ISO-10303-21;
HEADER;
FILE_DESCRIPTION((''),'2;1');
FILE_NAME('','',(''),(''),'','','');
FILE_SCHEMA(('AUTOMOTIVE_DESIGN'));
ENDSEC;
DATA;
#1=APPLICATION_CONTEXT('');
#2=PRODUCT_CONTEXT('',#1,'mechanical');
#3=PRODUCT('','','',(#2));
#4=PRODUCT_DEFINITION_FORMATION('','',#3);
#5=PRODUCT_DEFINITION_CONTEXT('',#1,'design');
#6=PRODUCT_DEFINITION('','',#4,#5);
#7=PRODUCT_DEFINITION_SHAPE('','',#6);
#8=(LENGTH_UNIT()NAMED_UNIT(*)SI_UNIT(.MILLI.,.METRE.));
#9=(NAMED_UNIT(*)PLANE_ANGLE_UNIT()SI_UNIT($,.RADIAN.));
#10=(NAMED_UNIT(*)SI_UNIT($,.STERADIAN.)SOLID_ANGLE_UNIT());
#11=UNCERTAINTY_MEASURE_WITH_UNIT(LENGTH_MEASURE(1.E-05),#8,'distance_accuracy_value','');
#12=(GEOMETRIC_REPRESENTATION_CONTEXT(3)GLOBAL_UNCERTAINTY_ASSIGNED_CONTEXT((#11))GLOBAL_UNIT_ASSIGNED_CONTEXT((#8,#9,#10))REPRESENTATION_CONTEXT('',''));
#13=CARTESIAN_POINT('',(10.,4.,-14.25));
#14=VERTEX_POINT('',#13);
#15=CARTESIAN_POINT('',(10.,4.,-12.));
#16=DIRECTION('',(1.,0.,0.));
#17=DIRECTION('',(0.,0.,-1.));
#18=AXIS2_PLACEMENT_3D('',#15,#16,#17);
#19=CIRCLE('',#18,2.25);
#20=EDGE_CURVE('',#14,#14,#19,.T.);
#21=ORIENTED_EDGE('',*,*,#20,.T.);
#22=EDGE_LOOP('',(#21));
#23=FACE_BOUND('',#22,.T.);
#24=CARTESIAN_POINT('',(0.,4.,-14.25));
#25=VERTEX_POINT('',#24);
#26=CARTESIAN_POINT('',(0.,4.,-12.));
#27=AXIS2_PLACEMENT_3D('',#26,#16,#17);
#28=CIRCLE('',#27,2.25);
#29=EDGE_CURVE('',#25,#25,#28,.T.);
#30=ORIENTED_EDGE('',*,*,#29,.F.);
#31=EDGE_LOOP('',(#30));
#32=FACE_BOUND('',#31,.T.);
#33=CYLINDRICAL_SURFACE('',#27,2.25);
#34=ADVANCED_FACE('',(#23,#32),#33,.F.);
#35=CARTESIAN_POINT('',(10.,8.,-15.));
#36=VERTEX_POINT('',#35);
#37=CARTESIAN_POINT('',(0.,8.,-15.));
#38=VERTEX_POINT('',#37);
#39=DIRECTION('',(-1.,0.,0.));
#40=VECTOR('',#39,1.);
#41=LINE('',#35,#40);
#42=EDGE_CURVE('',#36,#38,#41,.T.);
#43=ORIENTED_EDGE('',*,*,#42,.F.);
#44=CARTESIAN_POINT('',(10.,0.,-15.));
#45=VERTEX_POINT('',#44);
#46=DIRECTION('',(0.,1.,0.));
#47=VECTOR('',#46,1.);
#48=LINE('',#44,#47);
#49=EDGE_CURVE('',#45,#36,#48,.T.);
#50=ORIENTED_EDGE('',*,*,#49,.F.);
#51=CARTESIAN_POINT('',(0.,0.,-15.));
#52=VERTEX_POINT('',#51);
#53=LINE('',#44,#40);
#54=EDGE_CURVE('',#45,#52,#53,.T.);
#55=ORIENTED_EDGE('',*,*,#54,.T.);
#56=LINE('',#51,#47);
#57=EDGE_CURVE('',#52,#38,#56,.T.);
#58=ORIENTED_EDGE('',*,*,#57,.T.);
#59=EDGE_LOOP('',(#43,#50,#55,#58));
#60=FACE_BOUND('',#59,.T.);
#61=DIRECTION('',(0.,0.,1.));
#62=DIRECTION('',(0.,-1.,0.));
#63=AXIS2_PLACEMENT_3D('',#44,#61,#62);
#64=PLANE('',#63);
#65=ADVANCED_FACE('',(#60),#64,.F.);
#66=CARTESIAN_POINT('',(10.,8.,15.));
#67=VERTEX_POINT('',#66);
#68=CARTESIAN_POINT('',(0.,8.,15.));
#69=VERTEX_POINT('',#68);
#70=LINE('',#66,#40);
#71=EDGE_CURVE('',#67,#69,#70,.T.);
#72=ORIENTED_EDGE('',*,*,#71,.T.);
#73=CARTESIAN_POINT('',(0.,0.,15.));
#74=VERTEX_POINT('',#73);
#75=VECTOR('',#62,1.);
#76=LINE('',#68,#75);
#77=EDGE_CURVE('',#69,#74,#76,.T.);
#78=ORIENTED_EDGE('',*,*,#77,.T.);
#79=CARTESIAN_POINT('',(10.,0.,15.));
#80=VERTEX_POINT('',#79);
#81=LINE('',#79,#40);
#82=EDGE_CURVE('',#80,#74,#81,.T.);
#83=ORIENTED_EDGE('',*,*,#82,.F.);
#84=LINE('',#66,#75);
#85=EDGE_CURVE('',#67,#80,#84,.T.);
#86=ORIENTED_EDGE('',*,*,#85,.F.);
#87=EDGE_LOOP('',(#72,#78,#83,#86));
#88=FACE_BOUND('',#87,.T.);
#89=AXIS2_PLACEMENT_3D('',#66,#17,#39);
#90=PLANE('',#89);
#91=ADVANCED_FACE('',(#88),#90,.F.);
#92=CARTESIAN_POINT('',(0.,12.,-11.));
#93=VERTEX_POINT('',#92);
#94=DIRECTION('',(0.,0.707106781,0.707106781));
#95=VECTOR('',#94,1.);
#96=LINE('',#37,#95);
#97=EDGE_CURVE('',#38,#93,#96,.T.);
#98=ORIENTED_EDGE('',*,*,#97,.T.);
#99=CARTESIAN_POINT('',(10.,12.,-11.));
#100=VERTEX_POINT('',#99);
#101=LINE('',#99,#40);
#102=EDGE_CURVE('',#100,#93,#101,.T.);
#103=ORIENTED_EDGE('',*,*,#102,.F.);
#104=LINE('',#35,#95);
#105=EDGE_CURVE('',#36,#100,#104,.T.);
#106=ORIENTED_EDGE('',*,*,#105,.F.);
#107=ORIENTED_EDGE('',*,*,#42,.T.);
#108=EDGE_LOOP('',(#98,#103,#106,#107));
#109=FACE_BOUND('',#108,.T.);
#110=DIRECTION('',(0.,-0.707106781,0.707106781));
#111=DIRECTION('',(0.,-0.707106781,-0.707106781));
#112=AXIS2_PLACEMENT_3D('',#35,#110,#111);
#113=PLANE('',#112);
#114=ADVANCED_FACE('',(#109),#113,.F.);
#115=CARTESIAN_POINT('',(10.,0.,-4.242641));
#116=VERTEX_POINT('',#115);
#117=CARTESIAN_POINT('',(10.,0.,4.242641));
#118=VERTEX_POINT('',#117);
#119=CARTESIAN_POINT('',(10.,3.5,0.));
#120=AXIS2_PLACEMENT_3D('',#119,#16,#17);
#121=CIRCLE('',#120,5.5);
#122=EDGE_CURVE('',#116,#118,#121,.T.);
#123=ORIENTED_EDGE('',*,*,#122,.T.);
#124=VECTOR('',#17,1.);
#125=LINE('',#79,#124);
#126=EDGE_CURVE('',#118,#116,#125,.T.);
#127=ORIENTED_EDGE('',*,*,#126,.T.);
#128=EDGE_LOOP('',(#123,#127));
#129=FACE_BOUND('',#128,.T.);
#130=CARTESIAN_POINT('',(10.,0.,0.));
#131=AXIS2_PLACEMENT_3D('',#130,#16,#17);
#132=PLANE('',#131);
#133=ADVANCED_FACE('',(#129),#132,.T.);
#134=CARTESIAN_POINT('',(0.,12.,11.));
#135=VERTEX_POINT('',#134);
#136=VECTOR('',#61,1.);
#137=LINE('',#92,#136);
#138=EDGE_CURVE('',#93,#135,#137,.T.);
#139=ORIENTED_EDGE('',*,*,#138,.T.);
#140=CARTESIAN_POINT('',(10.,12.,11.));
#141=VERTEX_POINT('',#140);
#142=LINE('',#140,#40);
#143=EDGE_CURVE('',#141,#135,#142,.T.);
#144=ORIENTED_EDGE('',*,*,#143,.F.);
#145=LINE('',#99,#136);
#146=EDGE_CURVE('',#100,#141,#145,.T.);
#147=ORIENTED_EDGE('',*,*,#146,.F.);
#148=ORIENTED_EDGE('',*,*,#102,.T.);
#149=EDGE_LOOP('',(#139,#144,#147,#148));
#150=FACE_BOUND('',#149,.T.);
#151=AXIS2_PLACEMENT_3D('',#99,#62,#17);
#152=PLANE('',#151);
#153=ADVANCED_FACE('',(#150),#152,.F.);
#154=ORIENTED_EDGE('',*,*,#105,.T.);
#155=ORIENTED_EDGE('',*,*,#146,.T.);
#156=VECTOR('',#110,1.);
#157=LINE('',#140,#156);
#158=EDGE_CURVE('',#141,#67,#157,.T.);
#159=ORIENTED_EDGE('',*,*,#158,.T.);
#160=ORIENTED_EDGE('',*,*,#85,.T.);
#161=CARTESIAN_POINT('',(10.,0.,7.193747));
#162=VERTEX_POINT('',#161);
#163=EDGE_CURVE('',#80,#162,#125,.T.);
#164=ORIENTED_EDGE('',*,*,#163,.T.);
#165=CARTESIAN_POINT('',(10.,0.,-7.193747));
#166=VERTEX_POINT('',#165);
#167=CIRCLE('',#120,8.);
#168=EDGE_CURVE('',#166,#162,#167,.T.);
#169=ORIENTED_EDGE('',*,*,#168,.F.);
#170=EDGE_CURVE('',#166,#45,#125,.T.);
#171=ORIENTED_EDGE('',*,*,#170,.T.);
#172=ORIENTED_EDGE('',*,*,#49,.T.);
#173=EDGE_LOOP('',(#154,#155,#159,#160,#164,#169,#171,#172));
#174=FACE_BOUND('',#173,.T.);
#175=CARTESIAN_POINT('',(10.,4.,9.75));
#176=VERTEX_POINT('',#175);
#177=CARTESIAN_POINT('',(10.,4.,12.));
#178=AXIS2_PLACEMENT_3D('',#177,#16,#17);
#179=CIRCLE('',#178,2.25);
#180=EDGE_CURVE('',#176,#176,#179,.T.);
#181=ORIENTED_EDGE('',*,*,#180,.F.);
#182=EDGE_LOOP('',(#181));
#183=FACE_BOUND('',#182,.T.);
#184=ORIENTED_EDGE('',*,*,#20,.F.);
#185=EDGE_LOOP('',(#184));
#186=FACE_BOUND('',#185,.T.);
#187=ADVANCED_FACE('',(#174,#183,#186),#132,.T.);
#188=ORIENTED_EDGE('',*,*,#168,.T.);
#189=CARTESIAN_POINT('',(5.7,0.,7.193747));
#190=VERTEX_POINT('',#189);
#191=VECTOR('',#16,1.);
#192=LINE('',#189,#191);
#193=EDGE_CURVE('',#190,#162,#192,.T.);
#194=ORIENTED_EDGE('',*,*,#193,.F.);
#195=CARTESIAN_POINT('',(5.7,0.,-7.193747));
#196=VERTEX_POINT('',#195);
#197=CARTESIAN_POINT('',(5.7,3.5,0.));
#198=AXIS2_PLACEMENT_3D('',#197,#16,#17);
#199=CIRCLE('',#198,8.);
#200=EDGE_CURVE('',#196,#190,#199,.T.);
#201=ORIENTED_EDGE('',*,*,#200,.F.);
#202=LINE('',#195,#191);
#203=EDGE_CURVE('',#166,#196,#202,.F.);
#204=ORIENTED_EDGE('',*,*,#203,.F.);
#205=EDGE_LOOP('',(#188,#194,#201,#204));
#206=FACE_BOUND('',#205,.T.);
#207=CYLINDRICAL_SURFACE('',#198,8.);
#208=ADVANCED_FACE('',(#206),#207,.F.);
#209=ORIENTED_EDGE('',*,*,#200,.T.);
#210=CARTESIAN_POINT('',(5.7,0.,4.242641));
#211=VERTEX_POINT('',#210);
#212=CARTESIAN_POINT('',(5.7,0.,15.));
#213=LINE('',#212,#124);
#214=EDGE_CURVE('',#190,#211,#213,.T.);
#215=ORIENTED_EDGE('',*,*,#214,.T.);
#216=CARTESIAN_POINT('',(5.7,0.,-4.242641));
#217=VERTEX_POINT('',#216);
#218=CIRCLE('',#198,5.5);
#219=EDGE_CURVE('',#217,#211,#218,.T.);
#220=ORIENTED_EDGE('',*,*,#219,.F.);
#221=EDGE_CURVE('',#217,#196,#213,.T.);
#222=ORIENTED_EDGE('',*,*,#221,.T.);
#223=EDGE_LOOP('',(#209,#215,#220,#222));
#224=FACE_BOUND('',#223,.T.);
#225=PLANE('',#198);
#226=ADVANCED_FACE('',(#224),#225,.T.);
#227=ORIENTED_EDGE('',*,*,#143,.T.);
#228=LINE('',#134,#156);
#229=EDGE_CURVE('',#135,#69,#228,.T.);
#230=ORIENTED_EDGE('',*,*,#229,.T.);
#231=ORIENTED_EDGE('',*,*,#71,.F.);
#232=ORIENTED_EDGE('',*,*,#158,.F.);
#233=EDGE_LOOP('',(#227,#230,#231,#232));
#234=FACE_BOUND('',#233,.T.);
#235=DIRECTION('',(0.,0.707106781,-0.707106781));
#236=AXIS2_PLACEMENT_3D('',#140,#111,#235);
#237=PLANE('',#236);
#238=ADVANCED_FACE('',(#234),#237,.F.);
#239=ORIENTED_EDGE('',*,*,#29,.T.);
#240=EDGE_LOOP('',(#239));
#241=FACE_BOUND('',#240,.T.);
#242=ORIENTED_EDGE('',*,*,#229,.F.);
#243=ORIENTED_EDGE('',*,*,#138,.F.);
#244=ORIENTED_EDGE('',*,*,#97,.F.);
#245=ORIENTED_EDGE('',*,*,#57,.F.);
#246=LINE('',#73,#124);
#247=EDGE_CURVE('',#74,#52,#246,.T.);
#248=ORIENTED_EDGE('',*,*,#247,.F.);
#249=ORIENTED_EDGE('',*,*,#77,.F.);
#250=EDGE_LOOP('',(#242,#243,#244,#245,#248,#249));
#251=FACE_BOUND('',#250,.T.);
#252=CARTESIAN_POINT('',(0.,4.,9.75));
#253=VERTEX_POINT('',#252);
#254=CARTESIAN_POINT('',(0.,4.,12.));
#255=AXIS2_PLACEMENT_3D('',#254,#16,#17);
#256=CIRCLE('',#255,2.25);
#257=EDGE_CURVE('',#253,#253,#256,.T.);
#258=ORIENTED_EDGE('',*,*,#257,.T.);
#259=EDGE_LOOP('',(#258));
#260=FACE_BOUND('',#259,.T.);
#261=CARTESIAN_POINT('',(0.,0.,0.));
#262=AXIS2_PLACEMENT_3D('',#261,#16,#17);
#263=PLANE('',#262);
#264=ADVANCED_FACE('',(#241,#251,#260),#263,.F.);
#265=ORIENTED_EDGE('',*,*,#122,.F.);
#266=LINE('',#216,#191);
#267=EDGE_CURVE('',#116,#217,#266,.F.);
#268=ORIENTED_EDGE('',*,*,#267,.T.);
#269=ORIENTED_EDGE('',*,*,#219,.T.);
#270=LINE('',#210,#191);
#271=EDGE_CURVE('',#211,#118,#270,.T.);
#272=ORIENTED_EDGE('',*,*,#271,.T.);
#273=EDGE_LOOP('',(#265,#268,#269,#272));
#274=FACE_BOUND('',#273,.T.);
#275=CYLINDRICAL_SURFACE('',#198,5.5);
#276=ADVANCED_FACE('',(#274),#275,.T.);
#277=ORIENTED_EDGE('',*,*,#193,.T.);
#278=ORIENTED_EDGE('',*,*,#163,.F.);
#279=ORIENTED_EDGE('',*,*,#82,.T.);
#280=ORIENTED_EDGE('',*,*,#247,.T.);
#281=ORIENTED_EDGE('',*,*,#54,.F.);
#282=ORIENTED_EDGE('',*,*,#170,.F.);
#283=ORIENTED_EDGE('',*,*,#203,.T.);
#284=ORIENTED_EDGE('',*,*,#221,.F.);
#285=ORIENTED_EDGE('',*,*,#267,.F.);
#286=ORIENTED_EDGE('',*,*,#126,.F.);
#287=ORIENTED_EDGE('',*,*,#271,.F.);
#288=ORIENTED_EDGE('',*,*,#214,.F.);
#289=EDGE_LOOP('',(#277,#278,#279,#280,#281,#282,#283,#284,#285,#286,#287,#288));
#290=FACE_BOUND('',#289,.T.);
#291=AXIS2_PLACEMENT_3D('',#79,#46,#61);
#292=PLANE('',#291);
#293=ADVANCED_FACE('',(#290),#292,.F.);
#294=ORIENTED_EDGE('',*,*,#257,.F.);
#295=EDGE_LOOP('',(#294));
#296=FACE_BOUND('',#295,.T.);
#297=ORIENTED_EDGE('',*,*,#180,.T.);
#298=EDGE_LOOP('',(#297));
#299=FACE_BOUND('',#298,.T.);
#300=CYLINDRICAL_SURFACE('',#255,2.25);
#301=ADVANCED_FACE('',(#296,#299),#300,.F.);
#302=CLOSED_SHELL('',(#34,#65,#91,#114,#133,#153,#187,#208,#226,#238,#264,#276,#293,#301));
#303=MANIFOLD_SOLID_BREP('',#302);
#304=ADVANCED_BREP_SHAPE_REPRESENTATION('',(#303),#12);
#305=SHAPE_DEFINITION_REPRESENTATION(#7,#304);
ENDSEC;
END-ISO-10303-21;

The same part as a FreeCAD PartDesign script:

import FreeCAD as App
import Part
import Sketcher
from FreeCAD import Vector

doc = App.newDocument("Part")
body = doc.addObject("PartDesign::Body", "Body")

sketch1 = body.newObject("Sketcher::SketchObject", "Sketch")
sketch1.AttachmentSupport = (doc.getObject("YZ_Plane"), [""])
sketch1.MapMode = "FlatFace"
sketch1.addGeometry(Part.LineSegment(Vector(0, 15, 0), Vector(0, -15, 0)), False)
sketch1.addGeometry(Part.LineSegment(Vector(0, -15, 0), Vector(8, -15, 0)), False)
sketch1.addGeometry(Part.LineSegment(Vector(8, -15, 0), Vector(12, -11, 0)), False)
sketch1.addGeometry(Part.LineSegment(Vector(12, -11, 0), Vector(12, 11, 0)), False)
sketch1.addGeometry(Part.LineSegment(Vector(12, 11, 0), Vector(8, 15, 0)), False)
sketch1.addGeometry(Part.LineSegment(Vector(8, 15, 0), Vector(0, 15, 0)), False)
sketch1.addConstraint(Sketcher.Constraint("Coincident", 0, 2, 1, 1))
sketch1.addConstraint(Sketcher.Constraint("Coincident", 1, 2, 2, 1))
sketch1.addConstraint(Sketcher.Constraint("Coincident", 2, 2, 3, 1))
sketch1.addConstraint(Sketcher.Constraint("Coincident", 3, 2, 4, 1))
sketch1.addConstraint(Sketcher.Constraint("Coincident", 4, 2, 5, 1))
sketch1.addConstraint(Sketcher.Constraint("Coincident", 5, 2, 0, 1))
sketch1.addConstraint(Sketcher.Constraint("Vertical", 0))
sketch1.addConstraint(Sketcher.Constraint("Horizontal", 1))
sketch1.addConstraint(Sketcher.Constraint("Vertical", 3))
sketch1.addConstraint(Sketcher.Constraint("Horizontal", 5))
sketch1.addConstraint(Sketcher.Constraint("Symmetric", 0, 2, 5, 2, -1, 1))
sketch1.addConstraint(Sketcher.Constraint("Perpendicular", 2, 4))
sketch1.addConstraint(Sketcher.Constraint("Vertical", 1, 2, 4, 2))
sketch1.addConstraint(Sketcher.Constraint("Equal", 2, 4))
sketch1.addConstraint(Sketcher.Constraint("DistanceX", 1, 1, 1, 2, 8.0))
sketch1.addConstraint(Sketcher.Constraint("DistanceY", 0, 2, 0, 1, 30.0))
sketch1.addConstraint(Sketcher.Constraint("DistanceY", 3, 1, 3, 2, 22.0))
pad1 = body.newObject("PartDesign::Pad", "Pad")
pad1.Profile = sketch1
pad1.Length = 10

sketch2 = body.newObject("Sketcher::SketchObject", "Sketch001")
sketch2.AttachmentSupport = (doc.getObject("YZ_Plane"), [""])
sketch2.MapMode = "FlatFace"
sketch2.AttachmentOffset = App.Placement(Vector(0, 0, 10), App.Rotation())
sketch2.addGeometry(Part.Circle(Vector(4, 0, 0), Vector(0, 0, 1), 8), False)
sketch2.addGeometry(Part.Circle(Vector(4, 0, 0), Vector(0, 0, 1), 6), False)
sketch2.addConstraint(Sketcher.Constraint("Coincident", 1, 3, 0, 3))
sketch2.addConstraint(Sketcher.Constraint("PointOnObject", 0, 3, -1))
sketch2.addConstraint(Sketcher.Constraint("Diameter", 0, 16.0))
sketch2.addConstraint(Sketcher.Constraint("Diameter", 1, 11.0))
sketch2.addConstraint(Sketcher.Constraint("DistanceX", -1, 1, 0, 3, 3.5))
pocket1 = body.newObject("PartDesign::Pocket", "Pocket")
pocket1.Profile = sketch2
pocket1.Length = 4.3

sketch3 = body.newObject("Sketcher::SketchObject", "Sketch002")
sketch3.AttachmentSupport = (doc.getObject("YZ_Plane"), [""])
sketch3.MapMode = "FlatFace"
sketch3.AttachmentOffset = App.Placement(Vector(0, 0, 10), App.Rotation())
sketch3.addGeometry(Part.Circle(Vector(4, 12, 0), Vector(0, 0, 1), 2.2), False)
sketch3.addGeometry(Part.Circle(Vector(4, -12, 0), Vector(0, 0, 1), 2.2), False)
sketch3.addConstraint(Sketcher.Constraint("Equal", 0, 1))
sketch3.addConstraint(Sketcher.Constraint("Symmetric", 0, 3, 1, 3, -1))
sketch3.addConstraint(Sketcher.Constraint("Diameter", 0, 4.5))
sketch3.addConstraint(Sketcher.Constraint("DistanceX", -1, 1, 0, 3, 4.0))
sketch3.addConstraint(Sketcher.Constraint("DistanceY", -1, 1, 0, 3, 12.0))
pocket2 = body.newObject("PartDesign::Pocket", "Pocket001")
pocket2.Profile = sketch3
pocket2.Type = "ThroughAll"

doc.recompute()
